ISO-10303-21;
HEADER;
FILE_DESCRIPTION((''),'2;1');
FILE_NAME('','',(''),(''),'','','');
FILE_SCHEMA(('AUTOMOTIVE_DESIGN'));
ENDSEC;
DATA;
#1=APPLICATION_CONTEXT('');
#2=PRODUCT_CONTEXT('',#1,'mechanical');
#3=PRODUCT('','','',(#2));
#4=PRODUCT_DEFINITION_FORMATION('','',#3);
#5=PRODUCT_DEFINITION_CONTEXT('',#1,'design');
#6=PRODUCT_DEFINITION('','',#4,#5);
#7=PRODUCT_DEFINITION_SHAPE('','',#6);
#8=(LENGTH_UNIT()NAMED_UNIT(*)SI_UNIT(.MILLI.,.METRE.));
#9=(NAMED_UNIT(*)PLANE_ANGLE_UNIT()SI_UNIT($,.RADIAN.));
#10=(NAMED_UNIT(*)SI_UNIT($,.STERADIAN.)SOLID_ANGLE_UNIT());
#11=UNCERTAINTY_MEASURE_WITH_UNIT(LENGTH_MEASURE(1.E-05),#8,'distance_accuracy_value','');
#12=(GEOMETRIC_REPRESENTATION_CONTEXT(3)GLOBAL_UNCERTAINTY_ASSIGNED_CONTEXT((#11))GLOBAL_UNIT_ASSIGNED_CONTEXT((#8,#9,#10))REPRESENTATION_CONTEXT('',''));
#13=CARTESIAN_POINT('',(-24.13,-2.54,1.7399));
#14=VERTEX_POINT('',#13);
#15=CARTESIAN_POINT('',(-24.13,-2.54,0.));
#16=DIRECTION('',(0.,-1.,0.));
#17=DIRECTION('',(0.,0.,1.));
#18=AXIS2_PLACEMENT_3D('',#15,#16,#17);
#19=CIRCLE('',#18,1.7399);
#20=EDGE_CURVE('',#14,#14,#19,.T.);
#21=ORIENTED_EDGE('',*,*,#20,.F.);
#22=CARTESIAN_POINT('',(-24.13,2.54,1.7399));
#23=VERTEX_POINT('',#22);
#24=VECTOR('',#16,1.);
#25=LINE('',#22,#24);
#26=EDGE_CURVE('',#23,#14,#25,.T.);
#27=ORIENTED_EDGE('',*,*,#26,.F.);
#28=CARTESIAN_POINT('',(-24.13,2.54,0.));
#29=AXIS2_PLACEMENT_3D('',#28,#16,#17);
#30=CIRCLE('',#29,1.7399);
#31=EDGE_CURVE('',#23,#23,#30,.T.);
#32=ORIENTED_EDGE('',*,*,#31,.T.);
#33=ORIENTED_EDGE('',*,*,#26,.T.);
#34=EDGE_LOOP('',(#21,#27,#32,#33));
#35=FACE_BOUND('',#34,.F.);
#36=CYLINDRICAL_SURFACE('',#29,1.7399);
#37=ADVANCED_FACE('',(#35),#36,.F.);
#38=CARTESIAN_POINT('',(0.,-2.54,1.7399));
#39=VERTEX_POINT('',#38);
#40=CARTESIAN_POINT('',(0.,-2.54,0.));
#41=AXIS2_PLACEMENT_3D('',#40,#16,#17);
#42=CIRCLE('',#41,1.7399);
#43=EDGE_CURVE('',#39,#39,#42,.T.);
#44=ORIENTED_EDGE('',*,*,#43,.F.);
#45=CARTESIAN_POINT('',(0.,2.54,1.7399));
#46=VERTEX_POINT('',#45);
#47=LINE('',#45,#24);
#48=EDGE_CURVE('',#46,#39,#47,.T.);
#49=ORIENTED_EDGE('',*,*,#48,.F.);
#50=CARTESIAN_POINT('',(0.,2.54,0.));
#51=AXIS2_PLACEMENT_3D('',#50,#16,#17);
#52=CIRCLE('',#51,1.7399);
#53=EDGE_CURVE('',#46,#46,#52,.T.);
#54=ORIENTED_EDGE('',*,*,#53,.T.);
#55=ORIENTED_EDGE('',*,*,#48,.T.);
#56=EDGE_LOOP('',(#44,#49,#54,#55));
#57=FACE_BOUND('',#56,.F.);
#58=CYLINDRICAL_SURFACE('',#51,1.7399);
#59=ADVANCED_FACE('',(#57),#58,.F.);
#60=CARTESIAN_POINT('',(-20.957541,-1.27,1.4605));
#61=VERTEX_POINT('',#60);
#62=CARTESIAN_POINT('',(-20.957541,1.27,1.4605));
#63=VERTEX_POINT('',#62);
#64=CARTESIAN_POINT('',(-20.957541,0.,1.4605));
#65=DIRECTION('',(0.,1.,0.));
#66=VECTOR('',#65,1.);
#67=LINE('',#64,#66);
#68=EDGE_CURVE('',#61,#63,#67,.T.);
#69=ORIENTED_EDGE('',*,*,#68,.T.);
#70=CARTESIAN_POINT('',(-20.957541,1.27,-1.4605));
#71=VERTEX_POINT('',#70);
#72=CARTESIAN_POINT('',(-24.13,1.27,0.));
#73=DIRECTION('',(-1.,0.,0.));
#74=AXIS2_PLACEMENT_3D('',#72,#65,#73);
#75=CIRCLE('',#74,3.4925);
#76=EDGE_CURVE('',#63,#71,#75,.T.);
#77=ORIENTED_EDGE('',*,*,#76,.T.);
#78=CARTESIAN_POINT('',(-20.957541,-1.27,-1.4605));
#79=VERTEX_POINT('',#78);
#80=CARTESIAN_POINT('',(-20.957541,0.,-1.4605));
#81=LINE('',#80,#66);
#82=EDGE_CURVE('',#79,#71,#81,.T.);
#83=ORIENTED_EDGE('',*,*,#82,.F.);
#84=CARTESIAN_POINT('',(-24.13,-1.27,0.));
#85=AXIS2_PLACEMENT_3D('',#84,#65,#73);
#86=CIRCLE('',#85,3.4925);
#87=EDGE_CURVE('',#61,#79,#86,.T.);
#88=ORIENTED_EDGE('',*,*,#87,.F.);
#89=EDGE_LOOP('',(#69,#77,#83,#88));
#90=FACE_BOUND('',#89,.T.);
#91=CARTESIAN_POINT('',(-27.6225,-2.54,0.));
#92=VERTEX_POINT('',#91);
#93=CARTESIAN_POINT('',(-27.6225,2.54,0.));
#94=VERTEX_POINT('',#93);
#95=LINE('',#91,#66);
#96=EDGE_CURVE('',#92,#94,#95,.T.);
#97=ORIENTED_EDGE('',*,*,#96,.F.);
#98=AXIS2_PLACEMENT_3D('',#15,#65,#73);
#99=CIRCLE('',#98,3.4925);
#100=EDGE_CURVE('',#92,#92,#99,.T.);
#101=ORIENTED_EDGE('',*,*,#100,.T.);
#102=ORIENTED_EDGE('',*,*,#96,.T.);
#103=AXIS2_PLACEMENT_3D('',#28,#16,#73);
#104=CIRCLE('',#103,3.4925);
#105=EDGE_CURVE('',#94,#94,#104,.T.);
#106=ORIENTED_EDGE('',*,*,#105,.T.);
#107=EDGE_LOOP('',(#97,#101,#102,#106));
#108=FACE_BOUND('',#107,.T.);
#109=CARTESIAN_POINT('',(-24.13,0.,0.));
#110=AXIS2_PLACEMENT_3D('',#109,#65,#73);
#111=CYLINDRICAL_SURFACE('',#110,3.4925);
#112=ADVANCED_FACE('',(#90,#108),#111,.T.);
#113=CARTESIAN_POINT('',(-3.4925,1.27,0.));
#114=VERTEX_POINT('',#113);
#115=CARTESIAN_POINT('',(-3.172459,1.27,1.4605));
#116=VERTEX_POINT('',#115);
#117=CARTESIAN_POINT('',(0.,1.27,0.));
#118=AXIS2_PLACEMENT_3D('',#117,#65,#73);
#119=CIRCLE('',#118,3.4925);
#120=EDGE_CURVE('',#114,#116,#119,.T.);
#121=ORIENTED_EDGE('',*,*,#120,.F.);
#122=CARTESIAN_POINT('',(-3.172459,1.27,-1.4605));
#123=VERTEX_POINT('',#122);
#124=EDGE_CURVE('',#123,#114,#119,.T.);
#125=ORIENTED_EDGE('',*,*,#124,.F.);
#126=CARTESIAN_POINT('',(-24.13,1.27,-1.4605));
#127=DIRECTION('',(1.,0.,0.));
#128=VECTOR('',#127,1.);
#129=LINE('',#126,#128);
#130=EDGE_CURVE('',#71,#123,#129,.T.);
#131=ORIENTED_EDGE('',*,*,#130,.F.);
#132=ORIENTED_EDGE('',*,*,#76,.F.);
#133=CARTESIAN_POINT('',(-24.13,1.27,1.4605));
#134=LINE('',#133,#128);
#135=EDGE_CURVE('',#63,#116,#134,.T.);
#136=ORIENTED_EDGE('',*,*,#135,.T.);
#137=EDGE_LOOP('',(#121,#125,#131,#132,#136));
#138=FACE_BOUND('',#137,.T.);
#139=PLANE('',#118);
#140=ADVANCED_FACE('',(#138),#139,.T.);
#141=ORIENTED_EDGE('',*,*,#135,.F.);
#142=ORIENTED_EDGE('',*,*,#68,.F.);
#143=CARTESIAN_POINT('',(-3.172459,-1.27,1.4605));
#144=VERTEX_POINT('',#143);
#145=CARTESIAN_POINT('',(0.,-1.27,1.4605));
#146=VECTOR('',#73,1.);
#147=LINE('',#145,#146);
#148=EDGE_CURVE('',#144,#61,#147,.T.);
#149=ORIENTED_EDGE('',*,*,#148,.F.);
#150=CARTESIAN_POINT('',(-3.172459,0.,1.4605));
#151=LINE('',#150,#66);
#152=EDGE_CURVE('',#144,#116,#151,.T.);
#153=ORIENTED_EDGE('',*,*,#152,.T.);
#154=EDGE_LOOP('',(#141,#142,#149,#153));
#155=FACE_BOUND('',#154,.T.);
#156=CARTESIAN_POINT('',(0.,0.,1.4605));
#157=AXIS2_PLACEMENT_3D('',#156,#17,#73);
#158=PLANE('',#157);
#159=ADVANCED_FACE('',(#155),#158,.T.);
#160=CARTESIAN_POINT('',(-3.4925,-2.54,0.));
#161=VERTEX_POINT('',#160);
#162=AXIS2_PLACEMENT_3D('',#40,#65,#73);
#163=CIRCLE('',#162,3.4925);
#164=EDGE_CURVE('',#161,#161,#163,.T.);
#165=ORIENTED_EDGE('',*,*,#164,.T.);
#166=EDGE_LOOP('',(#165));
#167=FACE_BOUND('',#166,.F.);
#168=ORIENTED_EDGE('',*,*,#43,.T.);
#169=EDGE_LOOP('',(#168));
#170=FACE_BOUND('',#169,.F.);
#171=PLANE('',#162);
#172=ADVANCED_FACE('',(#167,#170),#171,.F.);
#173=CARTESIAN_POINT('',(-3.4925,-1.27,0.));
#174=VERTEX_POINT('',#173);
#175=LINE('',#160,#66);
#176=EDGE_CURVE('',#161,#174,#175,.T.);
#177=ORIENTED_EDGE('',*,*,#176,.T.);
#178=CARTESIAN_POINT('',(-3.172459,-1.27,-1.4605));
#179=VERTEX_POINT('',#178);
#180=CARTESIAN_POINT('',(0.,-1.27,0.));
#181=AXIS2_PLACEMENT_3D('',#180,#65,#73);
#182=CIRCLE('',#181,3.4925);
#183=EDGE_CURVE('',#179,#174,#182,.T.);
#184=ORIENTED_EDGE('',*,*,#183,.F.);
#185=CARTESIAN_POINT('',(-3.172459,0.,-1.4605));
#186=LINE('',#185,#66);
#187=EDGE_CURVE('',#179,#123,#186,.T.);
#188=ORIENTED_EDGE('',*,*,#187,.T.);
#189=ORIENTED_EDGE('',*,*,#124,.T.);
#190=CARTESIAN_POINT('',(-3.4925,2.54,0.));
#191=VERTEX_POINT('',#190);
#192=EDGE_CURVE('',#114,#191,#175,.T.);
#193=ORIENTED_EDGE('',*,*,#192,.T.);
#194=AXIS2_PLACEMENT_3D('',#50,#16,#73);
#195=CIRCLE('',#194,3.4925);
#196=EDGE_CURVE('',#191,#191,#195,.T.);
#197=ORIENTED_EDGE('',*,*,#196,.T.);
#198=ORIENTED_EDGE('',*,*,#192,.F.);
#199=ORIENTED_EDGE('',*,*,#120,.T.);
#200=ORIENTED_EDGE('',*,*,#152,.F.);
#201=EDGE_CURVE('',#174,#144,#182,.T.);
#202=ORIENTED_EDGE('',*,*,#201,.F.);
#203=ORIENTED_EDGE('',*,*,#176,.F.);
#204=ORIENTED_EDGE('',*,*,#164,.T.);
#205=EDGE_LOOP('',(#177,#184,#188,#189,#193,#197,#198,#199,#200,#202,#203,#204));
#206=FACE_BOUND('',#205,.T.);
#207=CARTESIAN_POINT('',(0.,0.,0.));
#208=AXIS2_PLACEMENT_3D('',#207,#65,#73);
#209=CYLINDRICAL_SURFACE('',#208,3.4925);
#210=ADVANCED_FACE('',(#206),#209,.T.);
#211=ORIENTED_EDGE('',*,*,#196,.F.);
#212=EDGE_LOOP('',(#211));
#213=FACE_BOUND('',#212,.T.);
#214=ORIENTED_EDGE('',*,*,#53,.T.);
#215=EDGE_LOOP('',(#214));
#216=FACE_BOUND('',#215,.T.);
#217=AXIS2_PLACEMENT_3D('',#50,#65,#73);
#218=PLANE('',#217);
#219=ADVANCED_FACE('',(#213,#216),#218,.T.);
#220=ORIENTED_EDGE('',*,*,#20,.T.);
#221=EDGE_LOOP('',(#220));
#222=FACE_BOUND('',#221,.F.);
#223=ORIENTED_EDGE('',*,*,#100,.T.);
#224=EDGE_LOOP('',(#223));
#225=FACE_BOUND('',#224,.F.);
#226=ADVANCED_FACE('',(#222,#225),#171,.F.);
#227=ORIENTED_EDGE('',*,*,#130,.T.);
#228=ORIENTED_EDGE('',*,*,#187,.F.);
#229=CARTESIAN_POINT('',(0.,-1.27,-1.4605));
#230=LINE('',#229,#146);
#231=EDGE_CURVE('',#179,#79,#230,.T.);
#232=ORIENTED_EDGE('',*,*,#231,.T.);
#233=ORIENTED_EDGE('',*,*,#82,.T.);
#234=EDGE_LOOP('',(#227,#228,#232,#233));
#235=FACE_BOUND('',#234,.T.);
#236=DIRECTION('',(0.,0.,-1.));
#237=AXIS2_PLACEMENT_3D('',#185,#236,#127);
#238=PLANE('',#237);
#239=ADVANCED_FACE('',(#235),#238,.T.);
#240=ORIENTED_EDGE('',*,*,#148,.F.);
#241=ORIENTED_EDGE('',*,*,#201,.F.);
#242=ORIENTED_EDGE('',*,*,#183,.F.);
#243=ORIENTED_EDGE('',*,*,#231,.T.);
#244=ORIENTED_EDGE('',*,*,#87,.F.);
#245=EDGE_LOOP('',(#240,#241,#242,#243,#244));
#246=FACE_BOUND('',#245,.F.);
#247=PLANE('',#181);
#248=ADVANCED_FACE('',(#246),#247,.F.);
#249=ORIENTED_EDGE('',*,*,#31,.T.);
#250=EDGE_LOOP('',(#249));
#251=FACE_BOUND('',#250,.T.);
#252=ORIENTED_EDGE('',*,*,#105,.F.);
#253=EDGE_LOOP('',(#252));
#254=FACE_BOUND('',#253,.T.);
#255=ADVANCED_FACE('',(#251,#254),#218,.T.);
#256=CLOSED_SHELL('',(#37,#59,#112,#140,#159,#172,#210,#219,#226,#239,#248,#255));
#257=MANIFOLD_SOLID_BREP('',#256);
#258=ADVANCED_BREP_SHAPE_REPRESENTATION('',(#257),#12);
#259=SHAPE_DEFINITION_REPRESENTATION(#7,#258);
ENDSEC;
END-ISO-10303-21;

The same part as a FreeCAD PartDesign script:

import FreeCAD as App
import Part
import Sketcher
from FreeCAD import Vector
Q = App.Units.Quantity


def add_polygon(sketch, points):
    """Adds a closed chain of lines whose ends are joined by coincident constraints."""
    first, n = sketch.GeometryCount, len(points)
    for a, b in zip(points, points[1:] + points[:1]):
        sketch.addGeometry(Part.LineSegment(App.Vector(*a, 0), App.Vector(*b, 0)), False)
    for i in range(n):
        sketch.addConstraint(Sketcher.Constraint("Coincident", first + i, 2, first + (i + 1) % n, 1))

doc = App.newDocument("Part")
body = doc.addObject("PartDesign::Body", "Body")
body.AllowCompound = True

# Sketch on XZ plane
sketch1 = body.newObject("Sketcher::SketchObject", "Sketch")
sketch1.AttachmentSupport = (doc.getObject("XZ_Plane"), [""])
sketch1.MapMode = "FlatFace"
sketch1.addGeometry([
    Part.Circle(Vector(0, 0, 0), Vector(0, 0, 1), 3.5),
    Part.Circle(Vector(-24.1, 0, 0), Vector(0, 0, 1), 3.5),
], False)
sketch1.addConstraint([
    Sketcher.Constraint("Coincident", 0, 3, -1, 1),
    Sketcher.Constraint("Equal", 0, 1),
    Sketcher.Constraint("PointOnObject", 1, 3, -1),
    Sketcher.Constraint("Diameter", 0, Q("0.275 in")),
    Sketcher.Constraint("DistanceX", 1, 3, -1, 1, Q("0.95 in")),
])
pad1 = body.newObject("PartDesign::Pad", "Pad")
pad1.Profile = sketch1
pad1.Length = Q("0.2 in")
pad1.Midplane = True

# Sketch on XZ plane
sketch2 = body.newObject("Sketcher::SketchObject", "Sketch001")
sketch2.AttachmentSupport = (doc.getObject("XZ_Plane"), [""])
sketch2.MapMode = "FlatFace"
add_polygon(sketch2, [(0, -1.5), (-24.1, -1.5), (-24.1, 1.5), (0, 1.5)])  # lines 0-3
sketch2.addConstraint([
    Sketcher.Constraint("Horizontal", 0),
    Sketcher.Constraint("Vertical", 1),
    Sketcher.Constraint("Horizontal", 2),
    Sketcher.Constraint("Vertical", 3),
    Sketcher.Constraint("Symmetric", 2, 2, 3, 2, -1, 1),
    Sketcher.Constraint("DistanceX", 0, 2, 0, 1, Q("0.95 in")),
    Sketcher.Constraint("DistanceY", 1, 1, 1, 2, Q("0.115 in")),
])
pad2 = body.newObject("PartDesign::Pad", "Pad001")
pad2.Profile = sketch2
pad2.Length = Q("0.1 in")
pad2.Midplane = True

# Sketch on XZ plane
sketch3 = body.newObject("Sketcher::SketchObject", "Sketch002")
sketch3.AttachmentSupport = (doc.getObject("XZ_Plane"), [""])
sketch3.MapMode = "FlatFace"
sketch3.AttachmentOffset = App.Placement(Vector(0, 0, -0.1 * 25.4), App.Rotation())
sketch3.addGeometry(Part.Circle(Vector(-24.1, 0, 0), Vector(0, 0, 1), 1.7), False)
sketch3.addConstraint([
    Sketcher.Constraint("PointOnObject", 0, 3, -1),
    Sketcher.Constraint("Diameter", 0, Q("0.137 in")),
    Sketcher.Constraint("DistanceX", 0, 3, -1, 1, Q("0.95 in")),
])
doc.recompute()
hole = body.newObject("PartDesign::Hole", "Hole")
hole.Profile = sketch3
hole.ThreadType = "None"
hole.Diameter = Q("0.137 in")
hole.DepthType = "ThroughAll"
hole.Reversed = True

# Sketch on XZ plane
sketch4 = body.newObject("Sketcher::SketchObject", "Sketch003")
sketch4.AttachmentSupport = (doc.getObject("XZ_Plane"), [""])
sketch4.MapMode = "FlatFace"
sketch4.AttachmentOffset = App.Placement(Vector(0, 0, -0.1 * 25.4), App.Rotation())
sketch4.addGeometry(Part.Circle(Vector(0, 0, 0), Vector(0, 0, 1), 1.7), False)
sketch4.addConstraint([
    Sketcher.Constraint("Coincident", 0, 3, -1, 1),
    Sketcher.Constraint("Diameter", 0, Q("0.137 in")),
])
doc.recompute()
hole2 = body.newObject("PartDesign::Hole", "Hole001")
hole2.Profile = sketch4
hole2.ThreadType = "None"
hole2.Diameter = Q("0.137 in")
hole2.DepthType = "ThroughAll"
hole2.Reversed = True

doc.recompute()
